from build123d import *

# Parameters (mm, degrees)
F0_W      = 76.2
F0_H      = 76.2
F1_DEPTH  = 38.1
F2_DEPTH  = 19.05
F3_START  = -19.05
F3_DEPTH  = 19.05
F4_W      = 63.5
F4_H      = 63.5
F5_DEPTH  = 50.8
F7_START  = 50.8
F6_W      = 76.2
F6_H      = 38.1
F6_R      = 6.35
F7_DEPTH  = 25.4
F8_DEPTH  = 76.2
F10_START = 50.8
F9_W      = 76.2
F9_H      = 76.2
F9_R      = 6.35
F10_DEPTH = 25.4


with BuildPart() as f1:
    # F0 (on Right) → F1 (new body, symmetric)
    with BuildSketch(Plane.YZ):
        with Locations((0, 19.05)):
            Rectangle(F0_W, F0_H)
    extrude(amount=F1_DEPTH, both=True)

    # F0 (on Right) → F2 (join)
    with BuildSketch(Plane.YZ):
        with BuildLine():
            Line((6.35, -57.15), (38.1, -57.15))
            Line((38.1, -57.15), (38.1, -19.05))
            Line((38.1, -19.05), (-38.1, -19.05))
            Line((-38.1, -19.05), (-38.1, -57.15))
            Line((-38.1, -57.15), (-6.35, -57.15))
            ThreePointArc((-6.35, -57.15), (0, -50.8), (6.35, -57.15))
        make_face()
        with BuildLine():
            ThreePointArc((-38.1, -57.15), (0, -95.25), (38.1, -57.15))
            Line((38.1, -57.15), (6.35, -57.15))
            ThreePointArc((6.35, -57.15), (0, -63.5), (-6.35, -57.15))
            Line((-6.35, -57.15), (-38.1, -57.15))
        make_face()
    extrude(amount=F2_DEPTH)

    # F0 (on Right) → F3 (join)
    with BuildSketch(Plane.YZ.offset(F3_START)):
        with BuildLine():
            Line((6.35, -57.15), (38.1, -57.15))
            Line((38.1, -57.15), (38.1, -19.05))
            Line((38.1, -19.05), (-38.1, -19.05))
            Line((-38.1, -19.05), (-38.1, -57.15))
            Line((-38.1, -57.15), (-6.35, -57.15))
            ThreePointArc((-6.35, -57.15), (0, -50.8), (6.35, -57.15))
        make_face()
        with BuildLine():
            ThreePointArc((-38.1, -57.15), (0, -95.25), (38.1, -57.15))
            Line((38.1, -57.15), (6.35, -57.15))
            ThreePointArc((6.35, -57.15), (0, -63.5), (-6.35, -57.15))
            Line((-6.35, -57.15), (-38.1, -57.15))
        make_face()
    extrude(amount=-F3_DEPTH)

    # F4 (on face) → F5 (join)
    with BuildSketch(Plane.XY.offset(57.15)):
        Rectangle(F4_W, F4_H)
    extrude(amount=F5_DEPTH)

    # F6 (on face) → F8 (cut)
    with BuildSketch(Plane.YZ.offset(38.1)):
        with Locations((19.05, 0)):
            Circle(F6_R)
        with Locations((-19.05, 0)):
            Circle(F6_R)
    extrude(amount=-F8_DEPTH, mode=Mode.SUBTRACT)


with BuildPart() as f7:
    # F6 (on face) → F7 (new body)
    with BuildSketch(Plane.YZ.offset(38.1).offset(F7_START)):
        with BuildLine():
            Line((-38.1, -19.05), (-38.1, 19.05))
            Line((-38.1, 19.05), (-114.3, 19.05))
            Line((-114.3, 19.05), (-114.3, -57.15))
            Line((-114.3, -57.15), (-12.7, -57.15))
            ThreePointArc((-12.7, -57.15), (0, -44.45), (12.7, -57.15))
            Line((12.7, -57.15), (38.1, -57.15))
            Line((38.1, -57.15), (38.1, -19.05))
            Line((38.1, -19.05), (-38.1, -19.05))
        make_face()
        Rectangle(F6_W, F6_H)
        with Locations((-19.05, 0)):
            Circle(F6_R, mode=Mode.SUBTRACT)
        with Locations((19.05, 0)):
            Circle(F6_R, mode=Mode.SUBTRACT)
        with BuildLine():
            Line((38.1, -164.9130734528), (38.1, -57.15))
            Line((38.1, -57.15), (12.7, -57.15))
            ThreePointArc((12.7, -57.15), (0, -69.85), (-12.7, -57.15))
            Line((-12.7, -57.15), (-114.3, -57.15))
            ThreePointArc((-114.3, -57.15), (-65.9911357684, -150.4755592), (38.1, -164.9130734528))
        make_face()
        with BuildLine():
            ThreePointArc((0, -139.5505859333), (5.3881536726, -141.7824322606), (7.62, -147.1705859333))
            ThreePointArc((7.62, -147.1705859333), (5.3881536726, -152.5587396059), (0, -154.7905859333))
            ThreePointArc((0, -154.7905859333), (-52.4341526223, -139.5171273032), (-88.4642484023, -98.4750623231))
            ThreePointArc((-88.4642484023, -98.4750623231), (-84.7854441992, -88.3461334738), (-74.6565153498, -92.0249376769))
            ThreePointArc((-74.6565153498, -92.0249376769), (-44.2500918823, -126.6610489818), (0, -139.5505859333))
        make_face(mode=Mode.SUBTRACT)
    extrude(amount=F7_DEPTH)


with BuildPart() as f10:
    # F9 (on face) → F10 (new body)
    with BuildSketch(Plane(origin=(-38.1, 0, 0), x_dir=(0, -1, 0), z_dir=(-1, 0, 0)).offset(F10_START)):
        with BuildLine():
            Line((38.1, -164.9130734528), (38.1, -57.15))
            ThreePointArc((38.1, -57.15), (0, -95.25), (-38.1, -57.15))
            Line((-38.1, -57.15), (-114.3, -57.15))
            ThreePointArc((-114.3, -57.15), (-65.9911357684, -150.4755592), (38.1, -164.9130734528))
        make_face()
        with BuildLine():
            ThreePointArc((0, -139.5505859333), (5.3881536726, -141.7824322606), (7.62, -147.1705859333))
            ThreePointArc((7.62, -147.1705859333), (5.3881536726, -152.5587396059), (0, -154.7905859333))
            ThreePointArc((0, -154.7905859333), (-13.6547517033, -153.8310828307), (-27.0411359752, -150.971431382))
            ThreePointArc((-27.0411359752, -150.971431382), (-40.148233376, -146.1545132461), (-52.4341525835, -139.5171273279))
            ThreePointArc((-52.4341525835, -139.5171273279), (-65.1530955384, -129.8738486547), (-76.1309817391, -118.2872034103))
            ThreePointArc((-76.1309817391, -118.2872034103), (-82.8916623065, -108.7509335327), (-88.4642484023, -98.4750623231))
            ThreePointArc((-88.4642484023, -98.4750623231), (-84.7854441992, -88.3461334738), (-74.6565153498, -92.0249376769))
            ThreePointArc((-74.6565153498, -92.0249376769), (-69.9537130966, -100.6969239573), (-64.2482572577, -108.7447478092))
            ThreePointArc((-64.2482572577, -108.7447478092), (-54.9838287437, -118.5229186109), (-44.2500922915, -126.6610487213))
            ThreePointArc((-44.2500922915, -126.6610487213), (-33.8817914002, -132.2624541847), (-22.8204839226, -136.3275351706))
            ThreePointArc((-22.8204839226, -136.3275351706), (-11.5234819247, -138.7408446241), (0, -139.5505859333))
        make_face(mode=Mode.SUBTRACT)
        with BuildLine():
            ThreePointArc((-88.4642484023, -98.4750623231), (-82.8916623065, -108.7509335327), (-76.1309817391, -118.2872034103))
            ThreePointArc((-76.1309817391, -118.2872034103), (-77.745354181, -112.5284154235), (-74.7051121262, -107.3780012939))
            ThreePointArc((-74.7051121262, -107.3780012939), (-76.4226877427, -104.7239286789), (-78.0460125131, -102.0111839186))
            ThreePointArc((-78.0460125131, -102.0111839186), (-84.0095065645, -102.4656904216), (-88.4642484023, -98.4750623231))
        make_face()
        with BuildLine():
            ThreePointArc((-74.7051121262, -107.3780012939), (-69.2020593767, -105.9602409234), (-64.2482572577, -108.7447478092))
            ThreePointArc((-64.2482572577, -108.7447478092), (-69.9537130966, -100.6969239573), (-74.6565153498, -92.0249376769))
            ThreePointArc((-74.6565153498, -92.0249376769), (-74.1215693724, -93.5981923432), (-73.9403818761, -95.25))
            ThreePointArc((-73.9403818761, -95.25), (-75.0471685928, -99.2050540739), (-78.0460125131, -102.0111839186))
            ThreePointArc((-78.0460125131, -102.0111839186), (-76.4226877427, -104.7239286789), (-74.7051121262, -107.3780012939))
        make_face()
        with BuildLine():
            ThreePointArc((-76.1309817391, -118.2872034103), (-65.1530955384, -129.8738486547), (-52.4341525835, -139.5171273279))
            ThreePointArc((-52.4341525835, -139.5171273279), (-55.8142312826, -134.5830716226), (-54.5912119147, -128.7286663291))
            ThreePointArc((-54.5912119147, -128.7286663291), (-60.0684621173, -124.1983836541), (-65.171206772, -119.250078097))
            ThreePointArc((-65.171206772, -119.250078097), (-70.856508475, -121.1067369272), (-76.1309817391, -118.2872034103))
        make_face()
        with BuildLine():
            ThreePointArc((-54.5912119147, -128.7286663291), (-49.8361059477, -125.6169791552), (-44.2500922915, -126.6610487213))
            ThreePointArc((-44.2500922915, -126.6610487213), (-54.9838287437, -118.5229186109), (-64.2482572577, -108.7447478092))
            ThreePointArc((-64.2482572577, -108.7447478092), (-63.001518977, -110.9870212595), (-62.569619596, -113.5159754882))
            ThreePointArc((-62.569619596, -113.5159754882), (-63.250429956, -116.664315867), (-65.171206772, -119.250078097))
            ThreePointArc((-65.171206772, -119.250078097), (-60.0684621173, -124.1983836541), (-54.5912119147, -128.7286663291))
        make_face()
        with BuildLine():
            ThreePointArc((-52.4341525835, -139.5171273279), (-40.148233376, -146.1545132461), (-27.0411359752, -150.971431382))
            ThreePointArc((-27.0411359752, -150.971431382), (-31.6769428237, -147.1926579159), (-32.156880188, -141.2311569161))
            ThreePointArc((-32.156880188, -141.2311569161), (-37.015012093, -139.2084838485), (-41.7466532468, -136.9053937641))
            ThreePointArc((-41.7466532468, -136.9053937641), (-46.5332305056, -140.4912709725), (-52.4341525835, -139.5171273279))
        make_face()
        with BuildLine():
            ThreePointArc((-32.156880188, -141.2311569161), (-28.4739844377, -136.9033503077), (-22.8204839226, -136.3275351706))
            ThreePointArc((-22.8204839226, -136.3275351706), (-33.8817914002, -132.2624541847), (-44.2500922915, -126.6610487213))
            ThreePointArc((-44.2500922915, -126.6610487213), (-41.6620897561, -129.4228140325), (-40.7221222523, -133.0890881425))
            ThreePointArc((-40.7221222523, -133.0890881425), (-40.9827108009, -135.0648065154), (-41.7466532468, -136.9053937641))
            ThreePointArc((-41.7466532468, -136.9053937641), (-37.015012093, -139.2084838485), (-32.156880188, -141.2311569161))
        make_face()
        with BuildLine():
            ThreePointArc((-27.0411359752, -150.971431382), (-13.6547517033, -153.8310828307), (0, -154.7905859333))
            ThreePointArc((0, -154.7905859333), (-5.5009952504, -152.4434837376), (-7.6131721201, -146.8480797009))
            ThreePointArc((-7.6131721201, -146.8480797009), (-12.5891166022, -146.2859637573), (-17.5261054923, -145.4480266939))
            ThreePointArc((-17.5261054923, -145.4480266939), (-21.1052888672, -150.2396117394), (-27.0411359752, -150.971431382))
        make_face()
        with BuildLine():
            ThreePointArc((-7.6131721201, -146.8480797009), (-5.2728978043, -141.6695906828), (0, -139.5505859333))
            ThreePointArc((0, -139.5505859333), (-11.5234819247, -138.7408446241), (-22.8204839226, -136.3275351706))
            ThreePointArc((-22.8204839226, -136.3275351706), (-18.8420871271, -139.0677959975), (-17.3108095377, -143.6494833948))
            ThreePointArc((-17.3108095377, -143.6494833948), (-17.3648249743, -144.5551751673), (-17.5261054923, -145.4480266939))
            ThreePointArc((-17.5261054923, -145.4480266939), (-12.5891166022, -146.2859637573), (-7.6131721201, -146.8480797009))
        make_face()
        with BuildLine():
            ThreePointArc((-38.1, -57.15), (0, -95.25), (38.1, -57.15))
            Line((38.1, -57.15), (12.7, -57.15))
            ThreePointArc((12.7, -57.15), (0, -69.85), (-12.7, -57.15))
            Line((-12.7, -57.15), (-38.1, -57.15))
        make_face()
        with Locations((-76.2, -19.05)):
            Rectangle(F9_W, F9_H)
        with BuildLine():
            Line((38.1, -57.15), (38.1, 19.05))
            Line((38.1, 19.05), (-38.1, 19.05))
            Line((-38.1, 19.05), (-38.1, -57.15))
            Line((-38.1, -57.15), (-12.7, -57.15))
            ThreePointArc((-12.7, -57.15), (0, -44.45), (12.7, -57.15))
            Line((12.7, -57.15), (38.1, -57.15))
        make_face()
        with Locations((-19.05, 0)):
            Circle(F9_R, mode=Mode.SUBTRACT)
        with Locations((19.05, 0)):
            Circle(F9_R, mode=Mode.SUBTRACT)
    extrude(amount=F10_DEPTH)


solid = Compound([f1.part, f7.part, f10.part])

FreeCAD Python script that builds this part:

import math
import FreeCAD as App
import Part
import Sketcher
from FreeCAD import Vector
Q = App.Units.Quantity

doc = App.newDocument("Part")
params = doc.addObject("Spreadsheet::Sheet", "Params")
for row, (alias, value) in enumerate([
    ("sketch1_width", "3 in"),
    ("pad1_length", "3 in"),
    ("sketch2_diameter", "0.5 in"),
    ("sketch2_radius", "1.5 in"),
    ("sketch2_height", "1.5 in"),
    ("pad2_length", "0.75 in"),
    ("sketch3_diameter", "0.5 in"),
    ("sketch3_radius", "1.5 in"),
    ("sketch3_height", "1.5 in"),
    ("pad3_length", "0.75 in"),
    ("sketch4_width", "2.5 in"),
    ("pad4_length", "2 in"),
    ("sketch5_diameter", "0.5 in"),
    ("pocket1_length", "3 in"),
    ("sketch6_diameter", "1 in"),
    ("sketch6_diameter2", "0.5 in"),
    ("sketch6_radius", "4.5 in"),
    ("sketch6_radius2", "0.3 in"),
    ("sketch6_width", "6 in"),
    ("pad5_length", "1 in"),
    ("sketch7_diameter", "1 in"),
    ("sketch7_diameter2", "0.5 in"),
    ("sketch7_radius", "4.5 in"),
    ("sketch7_radius2", "0.3 in"),
    ("sketch7_width", "6 in"),
    ("pad6_length", "1 in"),
], start=1):
    params.set(f"A{row}", alias)
    params.set(f"B{row}", "=" + value)
    params.setAlias(f"B{row}", alias)

body = doc.addObject("PartDesign::Body", "Body")

sketch1 = body.newObject("Sketcher::SketchObject", "Sketch")
sketch1.AttachmentSupport = (doc.getObject("YZ_Plane"), [""])
sketch1.MapMode = "FlatFace"
sketch1.addGeometry([
    Part.LineSegment(Vector(-38.1, 57.15, 0), Vector(-38.1, -19.05, 0)),
    Part.LineSegment(Vector(-38.1, -19.05, 0), Vector(38.1, -19.05, 0)),
    Part.LineSegment(Vector(38.1, -19.05, 0), Vector(38.1, 57.15, 0)),
    Part.LineSegment(Vector(38.1, 57.15, 0), Vector(-38.1, 57.15, 0)),
], False)
sketch1.addConstraint([
    Sketcher.Constraint("Coincident", 0, 2, 1, 1),
    Sketcher.Constraint("Coincident", 1, 2, 2, 1),
    Sketcher.Constraint("Coincident", 2, 2, 3, 1),
    Sketcher.Constraint("Coincident", 3, 2, 0, 1),
    Sketcher.Constraint("Vertical", 0),
    Sketcher.Constraint("Horizontal", 1),
    Sketcher.Constraint("Vertical", 2),
    Sketcher.Constraint("Horizontal", 3),
    Sketcher.Constraint("Equal", 3, 0),
    Sketcher.Constraint("DistanceX", 1, 1, 1, 2, Q("3 in")),
    Sketcher.Constraint("DistanceX", 0, 2, -1, 1, Q("1.5 in")),
    Sketcher.Constraint("DistanceY", 0, 2, -1, 1, Q("0.75 in")),
])
sketch1.setExpression("Constraints[9]", "Params.sketch1_width")
pad1 = body.newObject("PartDesign::Pad", "Pad")
pad1.Profile = sketch1
pad1.setExpression("Length", "Params.pad1_length")
pad1.Midplane = True

sketch2 = body.newObject("Sketcher::SketchObject", "Sketch001")
sketch2.AttachmentSupport = (doc.getObject("YZ_Plane"), [""])
sketch2.MapMode = "FlatFace"
sketch2.addGeometry([
    Part.LineSegment(Vector(38.1, -57.15, 0), Vector(38.1, -19.05, 0)),
    Part.LineSegment(Vector(38.1, -19.05, 0), Vector(-38.1, -19.05, 0)),
    Part.LineSegment(Vector(-38.1, -19.05, 0), Vector(-38.1, -57.15, 0)),
    Part.ArcOfCircle(Part.Circle(Vector(0, -57.15, 0), Vector(0, 0, 1), 38.1), math.radians(180), math.radians(360)),
    Part.Circle(Vector(0, -57.15, 0), Vector(0, 0, 1), 6.35),
], False)
sketch2.addConstraint([
    Sketcher.Constraint("Coincident", 0, 2, 1, 1),
    Sketcher.Constraint("Coincident", 1, 2, 2, 1),
    Sketcher.Constraint("Tangent", 2, 2, 3, 1),
    Sketcher.Constraint("Tangent", 3, 2, 0, 1),
    Sketcher.Constraint("Vertical", 0),
    Sketcher.Constraint("Horizontal", 1),
    Sketcher.Constraint("Vertical", 2),
    Sketcher.Constraint("Coincident", 4, 3, 3, 3),
    Sketcher.Constraint("PointOnObject", 3, 3, -2),
    Sketcher.Constraint("Diameter", 4, Q("0.5 in")),
    Sketcher.Constraint("Radius", 3, Q("1.5 in")),
    Sketcher.Constraint("DistanceY", 0, 1, 0, 2, Q("1.5 in")),
    Sketcher.Constraint("DistanceY", 3, 3, -1, 1, Q("2.25 in")),
])
sketch2.setExpression("Constraints[9]", "Params.sketch2_diameter")
sketch2.setExpression("Constraints[10]", "Params.sketch2_radius")
sketch2.setExpression("Constraints[11]", "Params.sketch2_height")
pad2 = body.newObject("PartDesign::Pad", "Pad001")
pad2.Profile = sketch2
pad2.setExpression("Length", "Params.pad2_length")

sketch3 = body.newObject("Sketcher::SketchObject", "Sketch002")
sketch3.AttachmentSupport = (doc.getObject("YZ_Plane"), [""])
sketch3.MapMode = "FlatFace"
sketch3.AttachmentOffset = App.Placement(Vector(0, 0, -0.75 * 25.4), App.Rotation())
sketch3.addGeometry([
    Part.LineSegment(Vector(38.1, -57.15, 0), Vector(38.1, -19.05, 0)),
    Part.LineSegment(Vector(38.1, -19.05, 0), Vector(-38.1, -19.05, 0)),
    Part.LineSegment(Vector(-38.1, -19.05, 0), Vector(-38.1, -57.15, 0)),
    Part.ArcOfCircle(Part.Circle(Vector(0, -57.15, 0), Vector(0, 0, 1), 38.1), math.radians(180), math.radians(360)),
    Part.Circle(Vector(0, -57.15, 0), Vector(0, 0, 1), 6.35),
], False)
sketch3.addConstraint([
    Sketcher.Constraint("Coincident", 0, 2, 1, 1),
    Sketcher.Constraint("Coincident", 1, 2, 2, 1),
    Sketcher.Constraint("Tangent", 2, 2, 3, 1),
    Sketcher.Constraint("Tangent", 3, 2, 0, 1),
    Sketcher.Constraint("Vertical", 0),
    Sketcher.Constraint("Horizontal", 1),
    Sketcher.Constraint("Vertical", 2),
    Sketcher.Constraint("Coincident", 4, 3, 3, 3),
    Sketcher.Constraint("PointOnObject", 3, 3, -2),
    Sketcher.Constraint("Diameter", 4, Q("0.5 in")),
    Sketcher.Constraint("Radius", 3, Q("1.5 in")),
    Sketcher.Constraint("DistanceY", 0, 1, 0, 2, Q("1.5 in")),
    Sketcher.Constraint("DistanceY", 3, 3, -1, 1, Q("2.25 in")),
])
sketch3.setExpression("Constraints[9]", "Params.sketch3_diameter")
sketch3.setExpression("Constraints[10]", "Params.sketch3_radius")
sketch3.setExpression("Constraints[11]", "Params.sketch3_height")
pad3 = body.newObject("PartDesign::Pad", "Pad002")
pad3.Profile = sketch3
pad3.setExpression("Length", "Params.pad3_length")
pad3.Reversed = True

sketch4 = body.newObject("Sketcher::SketchObject", "Sketch003")
sketch4.AttachmentSupport = (doc.getObject("XY_Plane"), [""])
sketch4.MapMode = "FlatFace"
sketch4.AttachmentOffset = App.Placement(Vector(0, 0, 2.25 * 25.4), App.Rotation())
sketch4.addGeometry([
    Part.LineSegment(Vector(-31.75, 31.75, 0), Vector(-31.75, -31.75, 0)),
    Part.LineSegment(Vector(-31.75, -31.75, 0), Vector(31.75, -31.75, 0)),
    Part.LineSegment(Vector(31.75, -31.75, 0), Vector(31.75, 31.75, 0)),
    Part.LineSegment(Vector(31.75, 31.75, 0), Vector(-31.75, 31.75, 0)),
], False)
sketch4.addConstraint([
    Sketcher.Constraint("Coincident", 0, 2, 1, 1),
    Sketcher.Constraint("Coincident", 1, 2, 2, 1),
    Sketcher.Constraint("Coincident", 2, 2, 3, 1),
    Sketcher.Constraint("Coincident", 3, 2, 0, 1),
    Sketcher.Constraint("Vertical", 0),
    Sketcher.Constraint("Horizontal", 1),
    Sketcher.Constraint("Vertical", 2),
    Sketcher.Constraint("Horizontal", 3),
    Sketcher.Constraint("Symmetric", 0, 2, 2, 2, -1, 1),
    Sketcher.Constraint("Equal", 3, 0),
    Sketcher.Constraint("DistanceX", 1, 1, 1, 2, Q("2.5 in")),
])
sketch4.setExpression("Constraints[10]", "Params.sketch4_width")
pad4 = body.newObject("PartDesign::Pad", "Pad003")
pad4.Profile = sketch4
pad4.setExpression("Length", "Params.pad4_length")

sketch5 = body.newObject("Sketcher::SketchObject", "Sketch004")
sketch5.AttachmentSupport = (doc.getObject("YZ_Plane"), [""])
sketch5.MapMode = "FlatFace"
sketch5.AttachmentOffset = App.Placement(Vector(0, 0, 1.5 * 25.4), App.Rotation())
sketch5.addGeometry([
    Part.Circle(Vector(19.05, 0, 0), Vector(0, 0, 1), 6.35),
    Part.Circle(Vector(-19.05, 0, 0), Vector(0, 0, 1), 6.35),
], False)
sketch5.addConstraint([
    Sketcher.Constraint("Equal", 0, 1),
    Sketcher.Constraint("Symmetric", 0, 3, 1, 3, -1, 1),
    Sketcher.Constraint("PointOnObject", 0, 3, -1),
    Sketcher.Constraint("Diameter", 0, Q("0.5 in")),
    Sketcher.Constraint("DistanceX", 1, 3, 0, 3, Q("1.5 in")),
])
sketch5.setExpression("Constraints[3]", "Params.sketch5_diameter")
pocket1 = body.newObject("PartDesign::Pocket", "Pocket")
pocket1.Profile = sketch5
pocket1.setExpression("Length", "Params.pocket1_length")
body2 = doc.addObject("PartDesign::Body", "Body001")

sketch6 = body2.newObject("Sketcher::SketchObject", "Sketch005")
sketch6.AttachmentSupport = (doc.getObject("YZ_Plane001"), [""])
sketch6.MapMode = "FlatFace"
sketch6.AttachmentOffset = App.Placement(Vector(0, 0, 3.5 * 25.4), App.Rotation())
sketch6.addGeometry([
    Part.LineSegment(Vector(-114.3, 19.05, 0), Vector(-114.3, -57.15, 0)),
    Part.ArcOfCircle(Part.Circle(Vector(0, -57.15, 0), Vector(0, 0, 1), 114.3), math.radians(180), math.radians(289.471221)),
    Part.LineSegment(Vector(38.1, -164.913073, 0), Vector(38.1, 19.05, 0)),
    Part.LineSegment(Vector(38.1, 19.05, 0), Vector(-114.3, 19.05, 0)),
    Part.ArcOfCircle(Part.Circle(Vector(0, -57.15, 0), Vector(0, 0, 1), 82.400586), math.radians(-154.960908), math.radians(-90)),
    Part.ArcOfCircle(Part.Circle(Vector(0, -147.170586, 0), Vector(0, 0, 1), 7.62), math.radians(0), math.radians(90)),
    Part.ArcOfCircle(Part.Circle(Vector(0, -147.170586, 0), Vector(0, 0, 1), 7.62), math.radians(-90), math.radians(0)),
    Part.ArcOfCircle(Part.Circle(Vector(0, -57.15, 0), Vector(0, 0, 1), 97.640586), math.radians(-154.960908), math.radians(-90)),
    Part.ArcOfCircle(Part.Circle(Vector(-81.560382, -95.25, 0), Vector(0, 0, 1), 7.62), math.radians(25.039092), math.radians(205.039092)),
    Part.Circle(Vector(0, -57.15, 0), Vector(0, 0, 1), 12.7),
    Part.Circle(Vector(-19.05, 0, 0), Vector(0, 0, 1), 6.35),
    Part.Circle(Vector(19.05, 0, 0), Vector(0, 0, 1), 6.35),
], False)
sketch6.addConstraint([
    Sketcher.Constraint("Tangent", 0, 2, 1, 1),
    Sketcher.Constraint("Coincident", 1, 2, 2, 1),
    Sketcher.Constraint("Coincident", 2, 2, 3, 1),
    Sketcher.Constraint("Coincident", 3, 2, 0, 1),
    Sketcher.Constraint("Tangent", 4, 2, 5, 2),
    Sketcher.Constraint("Tangent", 5, 1, 6, 2),
    Sketcher.Constraint("Tangent", 6, 1, 7, 2),
    Sketcher.Constraint("Tangent", 7, 1, 8, 2),
    Sketcher.Constraint("Tangent", 8, 1, 4, 1),
    Sketcher.Constraint("Vertical", 0),
    Sketcher.Constraint("Vertical", 2),
    Sketcher.Constraint("Horizontal", 3),
    Sketcher.Constraint("Coincident", 4, 3, 1, 3),
    Sketcher.Constraint("Coincident", 7, 3, 1, 3),
    Sketcher.Constraint("Coincident", 9, 3, 1, 3),
    Sketcher.Constraint("Equal", 5, 6),
    Sketcher.Constraint("Equal", 10, 11),
    Sketcher.Constraint("Symmetric", 10, 3, 11, 3, -1, 1),
    Sketcher.Constraint("PointOnObject", 1, 3, -2),
    Sketcher.Constraint("PointOnObject", 5, 3, -2),
    Sketcher.Constraint("PointOnObject", 10, 3, -1),
    Sketcher.Constraint("Horizontal", 6, 3, 5, 1),
    Sketcher.Constraint("Diameter", 9, Q("1 in")),
    Sketcher.Constraint("Diameter", 10, Q("0.5 in")),
    Sketcher.Constraint("Radius", 1, Q("4.5 in")),
    Sketcher.Constraint("Radius", 5, Q("0.3 in")),
    Sketcher.Constraint("DistanceX", 3, 2, 3, 1, Q("6 in")),
    Sketcher.Constraint("DistanceY", 0, 2, 0, 1, Q("3 in")),
    Sketcher.Constraint("DistanceY", 8, 3, 1, 3, Q("1.5 in")),
    Sketcher.Constraint("DistanceX", 10, 3, 11, 3, Q("1.5 in")),
    Sketcher.Constraint("DistanceY", 1, 3, -1, 1, Q("2.25 in")),
    Sketcher.Constraint("Radius", 4, 82.400586),
])
sketch6.setExpression("Constraints[22]", "Params.sketch6_diameter")
sketch6.setExpression("Constraints[23]", "Params.sketch6_diameter2")
sketch6.setExpression("Constraints[24]", "Params.sketch6_radius")
sketch6.setExpression("Constraints[25]", "Params.sketch6_radius2")
sketch6.setExpression("Constraints[26]", "Params.sketch6_width")
pad5 = body2.newObject("PartDesign::Pad", "Pad004")
pad5.Profile = sketch6
pad5.setExpression("Length", "Params.pad5_length")
body3 = doc.addObject("PartDesign::Body", "Body002")

sketch7 = body3.newObject("Sketcher::SketchObject", "Sketch006")
sketch7.AttachmentSupport = (doc.getObject("YZ_Plane002"), [""])
sketch7.MapMode = "FlatFace"
sketch7.AttachmentOffset = App.Placement(Vector(0, 0, -3.5 * 25.4), App.Rotation())
sketch7.addGeometry([
    Part.LineSegment(Vector(-38.1, -164.913073, 0), Vector(-38.1, 19.05, 0)),
    Part.LineSegment(Vector(-38.1, 19.05, 0), Vector(114.3, 19.05, 0)),
    Part.LineSegment(Vector(114.3, 19.05, 0), Vector(114.3, -57.15, 0)),
    Part.ArcOfCircle(Part.Circle(Vector(0, -57.15, 0), Vector(0, 0, 1), 114.3), math.radians(-109.471221), math.radians(0)),
    Part.ArcOfCircle(Part.Circle(Vector(48.342122, -133.089088, 0), Vector(0, 0, 1), 7.62), math.radians(-57.519546), math.radians(34.906145)),
    Part.ArcOfCircle(Part.Circle(Vector(48.342122, -133.089088, 0), Vector(0, 0, 1), 7.62), math.radians(34.906145), math.radians(122.48045)),
    Part.ArcOfCircle(Part.Circle(Vector(48.342122, -133.089088, 0), Vector(0, 0, 1), 7.62), math.radians(122.48045), math.radians(180)),
    Part.ArcOfCircle(Part.Circle(Vector(48.342122, -133.089088, 0), Vector(0, 0, 1), 7.62), math.radians(180), math.radians(302.480454)),
    Part.ArcOfCircle(Part.Circle(Vector(81.560382, -95.25, 0), Vector(0, 0, 1), 7.62), math.radians(-117.464783), math.radians(-25.039092)),
    Part.ArcOfCircle(Part.Circle(Vector(81.560382, -95.25, 0), Vector(0, 0, 1), 7.62), math.radians(-25.039092), math.radians(154.960908)),
    Part.ArcOfCircle(Part.Circle(Vector(81.560382, -95.25, 0), Vector(0, 0, 1), 7.62), math.radians(154.960908), math.radians(180)),
    Part.ArcOfCircle(Part.Circle(Vector(81.560382, -95.25, 0), Vector(0, 0, 1), 7.62), math.radians(180), math.radians(242.535217)),
    Part.ArcOfCircle(Part.Circle(Vector(70.18962, -113.515975, 0), Vector(0, 0, 1), 7.62), math.radians(-131.191997), math.radians(-38.766306)),
    Part.ArcOfCircle(Part.Circle(Vector(70.18962, -113.515975, 0), Vector(0, 0, 1), 7.62), math.radians(-38.766306), math.radians(53.659385)),
    Part.ArcOfCircle(Part.Circle(Vector(70.18962, -113.515975, 0), Vector(0, 0, 1), 7.62), math.radians(53.659385), math.radians(141.233696)),
    Part.ArcOfCircle(Part.Circle(Vector(70.18962, -113.515975, 0), Vector(0, 0, 1), 7.62), math.radians(141.233696), math.radians(180)),
    Part.ArcOfCircle(Part.Circle(Vector(70.18962, -113.515975, 0), Vector(0, 0, 1), 7.62), math.radians(180), math.radians(228.808003)),
    Part.ArcOfCircle(Part.Circle(Vector(24.93081, -143.649483, 0), Vector(0, 0, 1), 7.62), math.radians(-166.347696), math.radians(-73.922)),
    Part.ArcOfCircle(Part.Circle(Vector(24.93081, -143.649483, 0), Vector(0, 0, 1), 7.62), math.radians(-73.922), math.radians(18.503687)),
    Part.ArcOfCircle(Part.Circle(Vector(24.93081, -143.649483, 0), Vector(0, 0, 1), 7.62), math.radians(18.503687), math.radians(106.077994)),
    Part.ArcOfCircle(Part.Circle(Vector(24.93081, -143.649483, 0), Vector(0, 0, 1), 7.62), math.radians(106.077994), math.radians(180)),
    Part.ArcOfCircle(Part.Circle(Vector(24.93081, -143.649483, 0), Vector(0, 0, 1), 7.62), math.radians(180), math.radians(193.652305)),
    Part.ArcOfCircle(Part.Circle(Vector(0, -147.170586, 0), Vector(0, 0, 1), 7.62), math.radians(90), math.radians(180)),
    Part.ArcOfCircle(Part.Circle(Vector(0, -147.170586, 0), Vector(0, 0, 1), 7.62), math.radians(180), math.radians(270)),
    Part.ArcOfCircle(Part.Circle(Vector(0, -147.170586, 0), Vector(0, 0, 1), 7.62), math.radians(-90), math.radians(2.425691)),
    Part.ArcOfCircle(Part.Circle(Vector(0, -147.170586, 0), Vector(0, 0, 1), 7.62), math.radians(2.425691), math.radians(90)),
    Part.Circle(Vector(0, -57.15, 0), Vector(0, 0, 1), 12.7),
    Part.Circle(Vector(19.05, 0, 0), Vector(0, 0, 1), 6.35),
    Part.Circle(Vector(-19.05, 0, 0), Vector(0, 0, 1), 6.35),
], False)
sketch7.addConstraint([
    Sketcher.Constraint("Coincident", 0, 2, 1, 1),
    Sketcher.Constraint("Coincident", 1, 2, 2, 1),
    Sketcher.Constraint("Tangent", 2, 2, 3, 2),
    Sketcher.Constraint("Coincident", 3, 1, 0, 1),
    Sketcher.Constraint("Tangent", 4, 2, 5, 1),
    Sketcher.Constraint("Tangent", 5, 2, 6, 1),
    Sketcher.Constraint("Tangent", 6, 2, 7, 1),
    Sketcher.Constraint("Tangent", 7, 2, 4, 1),
    Sketcher.Constraint("Tangent", 8, 2, 9, 1),
    Sketcher.Constraint("Tangent", 9, 2, 10, 1),
    Sketcher.Constraint("Tangent", 10, 2, 11, 1),
    Sketcher.Constraint("Tangent", 11, 2, 8, 1),
    Sketcher.Constraint("Tangent", 12, 2, 13, 1),
    Sketcher.Constraint("Tangent", 13, 2, 14, 1),
    Sketcher.Constraint("Tangent", 14, 2, 15, 1),
    Sketcher.Constraint("Tangent", 15, 2, 16, 1),
    Sketcher.Constraint("Tangent", 16, 2, 12, 1),
    Sketcher.Constraint("Tangent", 17, 2, 18, 1),
    Sketcher.Constraint("Tangent", 18, 2, 19, 1),
    Sketcher.Constraint("Tangent", 19, 2, 20, 1),
    Sketcher.Constraint("Tangent", 20, 2, 21, 1),
    Sketcher.Constraint("Tangent", 21, 2, 17, 1),
    Sketcher.Constraint("Tangent", 22, 2, 23, 1),
    Sketcher.Constraint("Tangent", 23, 2, 24, 1),
    Sketcher.Constraint("Tangent", 24, 2, 25, 1),
    Sketcher.Constraint("Tangent", 25, 2, 22, 1),
    Sketcher.Constraint("Vertical", 0),
    Sketcher.Constraint("Horizontal", 1),
    Sketcher.Constraint("Vertical", 2),
    Sketcher.Constraint("Coincident", 14, 3, 12, 3),
    Sketcher.Constraint("Coincident", 19, 3, 17, 3),
    Sketcher.Constraint("Coincident", 26, 3, 3, 3),
    Sketcher.Constraint("Equal", 4, 5),
    Sketcher.Constraint("Equal", 7, 8),
    Sketcher.Constraint("Equal", 8, 9),
    Sketcher.Constraint("Equal", 11, 12),
    Sketcher.Constraint("Equal", 16, 17),
    Sketcher.Constraint("Equal", 21, 22),
    Sketcher.Constraint("Equal", 22, 23),
    Sketcher.Constraint("Equal", 27, 28),
    Sketcher.Constraint("Symmetric", 27, 3, 28, 3, -1, 1),
    Sketcher.Constraint("PointOnObject", 3, 3, -2),
    Sketcher.Constraint("PointOnObject", 22, 3, -2),
    Sketcher.Constraint("PointOnObject", 27, 3, -1),
    Sketcher.Constraint("PointOnObject", 23, 2, -2),
    Sketcher.Constraint("PointOnObject", 25, 2, -2),
    Sketcher.Constraint("Horizontal", 7, 3, 6, 2),
    Sketcher.Constraint("Horizontal", 11, 3, 10, 2),
    Sketcher.Constraint("Horizontal", 16, 3, 15, 2),
    Sketcher.Constraint("Horizontal", 21, 3, 20, 2),
    Sketcher.Constraint("Horizontal", 25, 3, 22, 2),
    Sketcher.Constraint("Diameter", 26, Q("1 in")),
    Sketcher.Constraint("Diameter", 27, Q("0.5 in")),
    Sketcher.Constraint("Radius", 3, Q("4.5 in")),
    Sketcher.Constraint("Radius", 4, Q("0.3 in")),
    Sketcher.Constraint("DistanceX", 1, 1, 1, 2, Q("6 in")),
    Sketcher.Constraint("DistanceY", 2, 2, 2, 1, Q("3 in")),
    Sketcher.Constraint("DistanceY", 8, 3, 3, 3, Q("1.5 in")),
    Sketcher.Constraint("DistanceX", 28, 3, 27, 3, Q("1.5 in")),
    Sketcher.Constraint("DistanceY", 3, 3, -1, 1, Q("2.25 in")),
    Sketcher.Constraint("DistanceY", 13, 2, -1, 1, 107.378001),
    Sketcher.Constraint("DistanceX", 13, 2, 11, 2, 3.3409),
    Sketcher.Constraint("DistanceY", 4, 3, -1, 1, 133.089088),
    Sketcher.Constraint("DistanceX", -1, 1, 8, 3, 81.560382),
    Sketcher.Constraint("DistanceX", -1, 1, 12, 3, 70.18962),
    Sketcher.Constraint("DistanceX", -1, 1, 17, 3, 24.93081),
    Sketcher.Constraint("DistanceX", -1, 1, 4, 2, 54.591212),
    Sketcher.Constraint("DistanceY", 5, 2, -1, 1, 126.661049),
    Sketcher.Constraint("DistanceX", -1, 1, 8, 2, 88.464248),
    Sketcher.Constraint("DistanceX", -1, 1, 12, 2, 76.130982),
    Sketcher.Constraint("DistanceY", 16, 2, -1, 1, 119.250078),
    Sketcher.Constraint("DistanceY", 17, 2, -1, 1, 150.971431),
    Sketcher.Constraint("DistanceX", -1, 1, 18, 2, 32.15688),
    Sketcher.Constraint("DistanceY", 24, 2, -1, 1, 146.84808),
    Sketcher.Constraint("DistanceX", 5, 3, 8, 3, 33.21826),
    Sketcher.Constraint("DistanceY", 3, 1, 21, 3, 21.26359),
    Sketcher.Constraint("DistanceY", 4, 2, 12, 3, 15.212691),
    Sketcher.Constraint("DistanceX", 4, 3, 7, 2, 4.09203),
    Sketcher.Constraint("DistanceY", 21, 3, 19, 2, 7.321948),
    Sketcher.Constraint("DistanceY", 22, 3, -1, 1, 147.170586),
    Sketcher.Constraint("DistanceX", -1, 1, 9, 2, 74.656515),
    Sketcher.Constraint("DistanceX", -1, 1, 14, 2, 64.248257),
    Sketcher.Constraint("DistanceX", -1, 1, 21, 2, 17.526105),
])
sketch7.setExpression("Constraints[51]", "Params.sketch7_diameter")
sketch7.setExpression("Constraints[52]", "Params.sketch7_diameter2")
sketch7.setExpression("Constraints[53]", "Params.sketch7_radius")
sketch7.setExpression("Constraints[54]", "Params.sketch7_radius2")
sketch7.setExpression("Constraints[55]", "Params.sketch7_width")
pad6 = body3.newObject("PartDesign::Pad", "Pad005")
pad6.Profile = sketch7
pad6.setExpression("Length", "Params.pad6_length")
pad6.Reversed = True

doc.recompute()
